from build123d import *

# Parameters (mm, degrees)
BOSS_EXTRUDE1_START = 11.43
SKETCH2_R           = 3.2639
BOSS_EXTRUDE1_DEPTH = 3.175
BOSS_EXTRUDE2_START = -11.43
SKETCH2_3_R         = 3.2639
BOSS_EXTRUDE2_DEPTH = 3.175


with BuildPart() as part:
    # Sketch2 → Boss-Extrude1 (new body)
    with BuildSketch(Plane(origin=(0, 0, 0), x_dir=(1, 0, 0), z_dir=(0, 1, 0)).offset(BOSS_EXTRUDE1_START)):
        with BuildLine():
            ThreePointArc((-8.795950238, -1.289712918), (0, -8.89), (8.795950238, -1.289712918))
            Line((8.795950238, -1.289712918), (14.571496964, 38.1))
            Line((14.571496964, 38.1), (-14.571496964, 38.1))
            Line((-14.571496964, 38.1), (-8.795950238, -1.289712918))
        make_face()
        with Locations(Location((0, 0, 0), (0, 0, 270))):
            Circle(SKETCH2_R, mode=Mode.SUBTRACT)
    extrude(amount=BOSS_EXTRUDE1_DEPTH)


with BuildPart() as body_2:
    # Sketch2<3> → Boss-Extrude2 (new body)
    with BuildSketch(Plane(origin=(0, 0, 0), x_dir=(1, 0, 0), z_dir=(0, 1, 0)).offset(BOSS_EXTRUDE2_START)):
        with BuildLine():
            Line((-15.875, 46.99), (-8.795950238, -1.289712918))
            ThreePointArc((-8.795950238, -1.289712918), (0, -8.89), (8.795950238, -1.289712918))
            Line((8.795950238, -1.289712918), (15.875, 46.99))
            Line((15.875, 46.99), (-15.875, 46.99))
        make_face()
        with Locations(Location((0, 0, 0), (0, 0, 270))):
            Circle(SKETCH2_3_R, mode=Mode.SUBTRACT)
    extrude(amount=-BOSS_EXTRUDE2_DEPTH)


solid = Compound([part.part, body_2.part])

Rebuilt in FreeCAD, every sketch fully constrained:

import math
import FreeCAD as App
import Part
import Sketcher
from FreeCAD import Vector
Q = App.Units.Quantity

doc = App.newDocument("Part")
body = doc.addObject("PartDesign::Body", "Body")

sketch1 = body.newObject("Sketcher::SketchObject", "Sketch")
sketch1.AttachmentSupport = (doc.getObject("XZ_Plane"), [""])
sketch1.MapMode = "FlatFace"
sketch1.AttachmentOffset = App.Placement(Vector(0, 0, -0.45 * 25.4), App.Rotation())
sketch1.addGeometry(Part.ArcOfCircle(Part.Circle(Vector(0, 0, 0), Vector(0, 0, 1), 8.9), math.radians(8), math.radians(172)), False)
sketch1.addGeometry(Part.LineSegment(Vector(8.8, 1.3, 0), Vector(14.6, -38.1, 0)), False)
sketch1.addGeometry(Part.LineSegment(Vector(14.6, -38.1, 0), Vector(-14.6, -38.1, 0)), False)
sketch1.addGeometry(Part.LineSegment(Vector(-14.6, -38.1, 0), Vector(-8.8, 1.3, 0)), False)
sketch1.addGeometry(Part.Circle(Vector(0, 0, 0), Vector(0, 0, 1), 3.3), False)
sketch1.addConstraint(Sketcher.Constraint("Tangent", 0, 1, 1, 1))
sketch1.addConstraint(Sketcher.Constraint("Coincident", 1, 2, 2, 1))
sketch1.addConstraint(Sketcher.Constraint("Coincident", 2, 2, 3, 1))
sketch1.addConstraint(Sketcher.Constraint("Tangent", 3, 2, 0, 2))
sketch1.addConstraint(Sketcher.Constraint("Horizontal", 2))
sketch1.addConstraint(Sketcher.Constraint("Coincident", 0, 3, -1, 1))
sketch1.addConstraint(Sketcher.Constraint("Coincident", 4, 3, -1, 1))
sketch1.addConstraint(Sketcher.Constraint("Horizontal", 0, 1, 3, 2))
sketch1.addConstraint(Sketcher.Constraint("Radius", 0, Q("0.35 in")))
sketch1.addConstraint(Sketcher.Constraint("Diameter", 4, Q("0.257 in")))
sketch1.addConstraint(Sketcher.Constraint("DistanceY", 1, 2, -1, 1, Q("1.5 in")))
sketch1.addConstraint(Sketcher.Constraint("DistanceX", 3, 2, 0, 1, 17.5919))
pad1 = body.newObject("PartDesign::Pad", "Pad")
pad1.Profile = sketch1
pad1.Length = Q("0.125 in")
pad1.Reversed = True
body2 = doc.addObject("PartDesign::Body", "Body001")

sketch2 = body2.newObject("Sketcher::SketchObject", "Sketch001")
sketch2.AttachmentSupport = (doc.getObject("XZ_Plane001"), [""])
sketch2.MapMode = "FlatFace"
sketch2.AttachmentOffset = App.Placement(Vector(0, 0, 0.45 * 25.4), App.Rotation())
sketch2.addGeometry(Part.LineSegment(Vector(-15.9, -47, 0), Vector(-8.8, 1.3, 0)), False)
sketch2.addGeometry(Part.ArcOfCircle(Part.Circle(Vector(0, 0, 0), Vector(0, 0, 1), 8.9), math.radians(8), math.radians(172)), False)
sketch2.addGeometry(Part.LineSegment(Vector(8.8, 1.3, 0), Vector(15.9, -47, 0)), False)
sketch2.addGeometry(Part.LineSegment(Vector(15.9, -47, 0), Vector(-15.9, -47, 0)), False)
sketch2.addGeometry(Part.Circle(Vector(0, 0, 0), Vector(0, 0, 1), 3.3), False)
sketch2.addConstraint(Sketcher.Constraint("Tangent", 0, 2, 1, 2))
sketch2.addConstraint(Sketcher.Constraint("Tangent", 1, 1, 2, 1))
sketch2.addConstraint(Sketcher.Constraint("Coincident", 2, 2, 3, 1))
sketch2.addConstraint(Sketcher.Constraint("Coincident", 3, 2, 0, 1))
sketch2.addConstraint(Sketcher.Constraint("Horizontal", 3))
sketch2.addConstraint(Sketcher.Constraint("Coincident", 1, 3, -1, 1))
sketch2.addConstraint(Sketcher.Constraint("Coincident", 4, 3, -1, 1))
sketch2.addConstraint(Sketcher.Constraint("Horizontal", 0, 2, 1, 1))
sketch2.addConstraint(Sketcher.Constraint("Radius", 1, Q("0.35 in")))
sketch2.addConstraint(Sketcher.Constraint("Diameter", 4, Q("0.257 in")))
sketch2.addConstraint(Sketcher.Constraint("DistanceX", 3, 2, 3, 1, Q("1.25 in")))
sketch2.addConstraint(Sketcher.Constraint("DistanceY", 2, 2, -1, 1, Q("1.85 in")))
pad2 = body2.newObject("PartDesign::Pad", "Pad001")
pad2.Profile = sketch2
pad2.Length = Q("0.125 in")

doc.recompute()
